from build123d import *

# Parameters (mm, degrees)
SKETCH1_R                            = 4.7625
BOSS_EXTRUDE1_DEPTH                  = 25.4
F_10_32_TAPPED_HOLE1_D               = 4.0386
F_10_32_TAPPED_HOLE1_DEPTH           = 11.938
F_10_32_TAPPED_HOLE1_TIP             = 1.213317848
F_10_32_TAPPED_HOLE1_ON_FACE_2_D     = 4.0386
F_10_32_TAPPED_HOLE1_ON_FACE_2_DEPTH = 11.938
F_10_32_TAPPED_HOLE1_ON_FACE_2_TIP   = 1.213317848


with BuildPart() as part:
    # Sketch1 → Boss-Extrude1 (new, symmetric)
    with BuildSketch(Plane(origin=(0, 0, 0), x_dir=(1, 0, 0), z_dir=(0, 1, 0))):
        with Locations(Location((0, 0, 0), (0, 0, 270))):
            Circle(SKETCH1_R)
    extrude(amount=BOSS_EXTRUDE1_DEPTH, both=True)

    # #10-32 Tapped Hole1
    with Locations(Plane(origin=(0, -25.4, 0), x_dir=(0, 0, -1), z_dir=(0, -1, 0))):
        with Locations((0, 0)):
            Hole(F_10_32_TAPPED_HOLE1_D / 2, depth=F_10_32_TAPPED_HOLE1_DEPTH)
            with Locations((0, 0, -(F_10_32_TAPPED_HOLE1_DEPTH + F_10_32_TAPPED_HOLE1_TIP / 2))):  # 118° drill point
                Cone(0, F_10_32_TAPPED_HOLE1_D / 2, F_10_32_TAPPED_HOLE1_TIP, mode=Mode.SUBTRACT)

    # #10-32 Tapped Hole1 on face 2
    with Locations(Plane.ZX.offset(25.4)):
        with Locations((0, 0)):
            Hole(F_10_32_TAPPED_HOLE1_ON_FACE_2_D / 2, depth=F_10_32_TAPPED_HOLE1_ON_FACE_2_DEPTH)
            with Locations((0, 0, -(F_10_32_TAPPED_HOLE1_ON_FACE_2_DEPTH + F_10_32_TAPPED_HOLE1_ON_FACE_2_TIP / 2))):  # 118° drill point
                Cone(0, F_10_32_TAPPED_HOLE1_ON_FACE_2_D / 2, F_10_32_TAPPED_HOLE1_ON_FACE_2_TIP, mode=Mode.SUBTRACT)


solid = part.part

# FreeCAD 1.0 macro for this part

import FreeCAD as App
import Part
import Sketcher
Q = App.Units.Quantity

doc = App.newDocument("Part")
params = doc.addObject("Spreadsheet::Sheet", "Params")
for row, (alias, value) in enumerate([
    ("sketch1_diameter", "0.375 in"),
    ("pad1_length", "2 in"),
    ("sketch2_diameter", "0.159 in"),
    ("hole_diameter", "0.159 in"),
    ("hole_depth", "0.47 in"),
    ("sketch3_diameter", "0.159 in"),
    ("hole2_diameter", "0.159 in"),
    ("hole2_depth", "0.47 in"),
], start=1):
    params.set(f"A{row}", alias)
    params.set(f"B{row}", "=" + value)
    params.setAlias(f"B{row}", alias)

body = doc.addObject("PartDesign::Body", "Body")

# Sketch on XZ plane
sketch1 = doc.addObject("Sketcher::SketchObject", "Sketch")
body.addObject(sketch1)
sketch1.AttachmentSupport = (doc.XZ_Plane, [""])
sketch1.MapMode = "FlatFace"
sketch1.addGeometry(Part.Circle(App.Vector(0, 0, 0), App.Vector(0, 0, 1), 4.8), False)
sketch1.addConstraint([
    Sketcher.Constraint("Coincident", 0, 3, -1, 1),
    Sketcher.Constraint("Diameter", 0, Q("0.375 in")),
])
sketch1.setExpression("Constraints[1]", "Params.sketch1_diameter")
pad1 = doc.addObject("PartDesign::Pad", "Pad")
body.addObject(pad1)
pad1.Profile = sketch1
pad1.setExpression("Length", "Params.pad1_length")
pad1.Midplane = True

# Sketch on XZ plane
sketch2 = doc.addObject("Sketcher::SketchObject", "Sketch001")
body.addObject(sketch2)
sketch2.AttachmentSupport = (doc.XZ_Plane, [""])
sketch2.MapMode = "FlatFace"
sketch2.AttachmentOffset = App.Placement(App.Vector(0, 0, 1 * 25.4), App.Rotation())
sketch2.addGeometry(Part.Circle(App.Vector(0, 0, 0), App.Vector(0, 0, 1), 2), False)
sketch2.addConstraint([
    Sketcher.Constraint("Coincident", 0, 3, -1, 1),
    Sketcher.Constraint("Diameter", 0, Q("0.159 in")),
])
sketch2.setExpression("Constraints[1]", "Params.sketch2_diameter")
doc.recompute()
hole = doc.addObject("PartDesign::Hole", "Hole")
body.addObject(hole)
hole.Profile = sketch2
hole.ThreadType = "None"
hole.setExpression("Diameter", "Params.hole_diameter")
hole.DepthType = "Dimension"
hole.setExpression("Depth", "Params.hole_depth")
hole.DrillPoint = "Angled"
hole.DrillPointAngle = 118

# Sketch on XZ plane
sketch3 = doc.addObject("Sketcher::SketchObject", "Sketch002")
body.addObject(sketch3)
sketch3.AttachmentSupport = (doc.XZ_Plane, [""])
sketch3.MapMode = "FlatFace"
sketch3.AttachmentOffset = App.Placement(App.Vector(0, 0, -1 * 25.4), App.Rotation())
sketch3.addGeometry(Part.Circle(App.Vector(0, 0, 0), App.Vector(0, 0, 1), 2), False)
sketch3.addConstraint([
    Sketcher.Constraint("Coincident", 0, 3, -1, 1),
    Sketcher.Constraint("Diameter", 0, Q("0.159 in")),
])
sketch3.setExpression("Constraints[1]", "Params.sketch3_diameter")
doc.recompute()
hole2 = doc.addObject("PartDesign::Hole", "Hole001")
body.addObject(hole2)
hole2.Profile = sketch3
hole2.ThreadType = "None"
hole2.setExpression("Diameter", "Params.hole2_diameter")
hole2.DepthType = "Dimension"
hole2.setExpression("Depth", "Params.hole2_depth")
hole2.DrillPoint = "Angled"
hole2.DrillPointAngle = 118
hole2.Reversed = True

doc.recompute()
